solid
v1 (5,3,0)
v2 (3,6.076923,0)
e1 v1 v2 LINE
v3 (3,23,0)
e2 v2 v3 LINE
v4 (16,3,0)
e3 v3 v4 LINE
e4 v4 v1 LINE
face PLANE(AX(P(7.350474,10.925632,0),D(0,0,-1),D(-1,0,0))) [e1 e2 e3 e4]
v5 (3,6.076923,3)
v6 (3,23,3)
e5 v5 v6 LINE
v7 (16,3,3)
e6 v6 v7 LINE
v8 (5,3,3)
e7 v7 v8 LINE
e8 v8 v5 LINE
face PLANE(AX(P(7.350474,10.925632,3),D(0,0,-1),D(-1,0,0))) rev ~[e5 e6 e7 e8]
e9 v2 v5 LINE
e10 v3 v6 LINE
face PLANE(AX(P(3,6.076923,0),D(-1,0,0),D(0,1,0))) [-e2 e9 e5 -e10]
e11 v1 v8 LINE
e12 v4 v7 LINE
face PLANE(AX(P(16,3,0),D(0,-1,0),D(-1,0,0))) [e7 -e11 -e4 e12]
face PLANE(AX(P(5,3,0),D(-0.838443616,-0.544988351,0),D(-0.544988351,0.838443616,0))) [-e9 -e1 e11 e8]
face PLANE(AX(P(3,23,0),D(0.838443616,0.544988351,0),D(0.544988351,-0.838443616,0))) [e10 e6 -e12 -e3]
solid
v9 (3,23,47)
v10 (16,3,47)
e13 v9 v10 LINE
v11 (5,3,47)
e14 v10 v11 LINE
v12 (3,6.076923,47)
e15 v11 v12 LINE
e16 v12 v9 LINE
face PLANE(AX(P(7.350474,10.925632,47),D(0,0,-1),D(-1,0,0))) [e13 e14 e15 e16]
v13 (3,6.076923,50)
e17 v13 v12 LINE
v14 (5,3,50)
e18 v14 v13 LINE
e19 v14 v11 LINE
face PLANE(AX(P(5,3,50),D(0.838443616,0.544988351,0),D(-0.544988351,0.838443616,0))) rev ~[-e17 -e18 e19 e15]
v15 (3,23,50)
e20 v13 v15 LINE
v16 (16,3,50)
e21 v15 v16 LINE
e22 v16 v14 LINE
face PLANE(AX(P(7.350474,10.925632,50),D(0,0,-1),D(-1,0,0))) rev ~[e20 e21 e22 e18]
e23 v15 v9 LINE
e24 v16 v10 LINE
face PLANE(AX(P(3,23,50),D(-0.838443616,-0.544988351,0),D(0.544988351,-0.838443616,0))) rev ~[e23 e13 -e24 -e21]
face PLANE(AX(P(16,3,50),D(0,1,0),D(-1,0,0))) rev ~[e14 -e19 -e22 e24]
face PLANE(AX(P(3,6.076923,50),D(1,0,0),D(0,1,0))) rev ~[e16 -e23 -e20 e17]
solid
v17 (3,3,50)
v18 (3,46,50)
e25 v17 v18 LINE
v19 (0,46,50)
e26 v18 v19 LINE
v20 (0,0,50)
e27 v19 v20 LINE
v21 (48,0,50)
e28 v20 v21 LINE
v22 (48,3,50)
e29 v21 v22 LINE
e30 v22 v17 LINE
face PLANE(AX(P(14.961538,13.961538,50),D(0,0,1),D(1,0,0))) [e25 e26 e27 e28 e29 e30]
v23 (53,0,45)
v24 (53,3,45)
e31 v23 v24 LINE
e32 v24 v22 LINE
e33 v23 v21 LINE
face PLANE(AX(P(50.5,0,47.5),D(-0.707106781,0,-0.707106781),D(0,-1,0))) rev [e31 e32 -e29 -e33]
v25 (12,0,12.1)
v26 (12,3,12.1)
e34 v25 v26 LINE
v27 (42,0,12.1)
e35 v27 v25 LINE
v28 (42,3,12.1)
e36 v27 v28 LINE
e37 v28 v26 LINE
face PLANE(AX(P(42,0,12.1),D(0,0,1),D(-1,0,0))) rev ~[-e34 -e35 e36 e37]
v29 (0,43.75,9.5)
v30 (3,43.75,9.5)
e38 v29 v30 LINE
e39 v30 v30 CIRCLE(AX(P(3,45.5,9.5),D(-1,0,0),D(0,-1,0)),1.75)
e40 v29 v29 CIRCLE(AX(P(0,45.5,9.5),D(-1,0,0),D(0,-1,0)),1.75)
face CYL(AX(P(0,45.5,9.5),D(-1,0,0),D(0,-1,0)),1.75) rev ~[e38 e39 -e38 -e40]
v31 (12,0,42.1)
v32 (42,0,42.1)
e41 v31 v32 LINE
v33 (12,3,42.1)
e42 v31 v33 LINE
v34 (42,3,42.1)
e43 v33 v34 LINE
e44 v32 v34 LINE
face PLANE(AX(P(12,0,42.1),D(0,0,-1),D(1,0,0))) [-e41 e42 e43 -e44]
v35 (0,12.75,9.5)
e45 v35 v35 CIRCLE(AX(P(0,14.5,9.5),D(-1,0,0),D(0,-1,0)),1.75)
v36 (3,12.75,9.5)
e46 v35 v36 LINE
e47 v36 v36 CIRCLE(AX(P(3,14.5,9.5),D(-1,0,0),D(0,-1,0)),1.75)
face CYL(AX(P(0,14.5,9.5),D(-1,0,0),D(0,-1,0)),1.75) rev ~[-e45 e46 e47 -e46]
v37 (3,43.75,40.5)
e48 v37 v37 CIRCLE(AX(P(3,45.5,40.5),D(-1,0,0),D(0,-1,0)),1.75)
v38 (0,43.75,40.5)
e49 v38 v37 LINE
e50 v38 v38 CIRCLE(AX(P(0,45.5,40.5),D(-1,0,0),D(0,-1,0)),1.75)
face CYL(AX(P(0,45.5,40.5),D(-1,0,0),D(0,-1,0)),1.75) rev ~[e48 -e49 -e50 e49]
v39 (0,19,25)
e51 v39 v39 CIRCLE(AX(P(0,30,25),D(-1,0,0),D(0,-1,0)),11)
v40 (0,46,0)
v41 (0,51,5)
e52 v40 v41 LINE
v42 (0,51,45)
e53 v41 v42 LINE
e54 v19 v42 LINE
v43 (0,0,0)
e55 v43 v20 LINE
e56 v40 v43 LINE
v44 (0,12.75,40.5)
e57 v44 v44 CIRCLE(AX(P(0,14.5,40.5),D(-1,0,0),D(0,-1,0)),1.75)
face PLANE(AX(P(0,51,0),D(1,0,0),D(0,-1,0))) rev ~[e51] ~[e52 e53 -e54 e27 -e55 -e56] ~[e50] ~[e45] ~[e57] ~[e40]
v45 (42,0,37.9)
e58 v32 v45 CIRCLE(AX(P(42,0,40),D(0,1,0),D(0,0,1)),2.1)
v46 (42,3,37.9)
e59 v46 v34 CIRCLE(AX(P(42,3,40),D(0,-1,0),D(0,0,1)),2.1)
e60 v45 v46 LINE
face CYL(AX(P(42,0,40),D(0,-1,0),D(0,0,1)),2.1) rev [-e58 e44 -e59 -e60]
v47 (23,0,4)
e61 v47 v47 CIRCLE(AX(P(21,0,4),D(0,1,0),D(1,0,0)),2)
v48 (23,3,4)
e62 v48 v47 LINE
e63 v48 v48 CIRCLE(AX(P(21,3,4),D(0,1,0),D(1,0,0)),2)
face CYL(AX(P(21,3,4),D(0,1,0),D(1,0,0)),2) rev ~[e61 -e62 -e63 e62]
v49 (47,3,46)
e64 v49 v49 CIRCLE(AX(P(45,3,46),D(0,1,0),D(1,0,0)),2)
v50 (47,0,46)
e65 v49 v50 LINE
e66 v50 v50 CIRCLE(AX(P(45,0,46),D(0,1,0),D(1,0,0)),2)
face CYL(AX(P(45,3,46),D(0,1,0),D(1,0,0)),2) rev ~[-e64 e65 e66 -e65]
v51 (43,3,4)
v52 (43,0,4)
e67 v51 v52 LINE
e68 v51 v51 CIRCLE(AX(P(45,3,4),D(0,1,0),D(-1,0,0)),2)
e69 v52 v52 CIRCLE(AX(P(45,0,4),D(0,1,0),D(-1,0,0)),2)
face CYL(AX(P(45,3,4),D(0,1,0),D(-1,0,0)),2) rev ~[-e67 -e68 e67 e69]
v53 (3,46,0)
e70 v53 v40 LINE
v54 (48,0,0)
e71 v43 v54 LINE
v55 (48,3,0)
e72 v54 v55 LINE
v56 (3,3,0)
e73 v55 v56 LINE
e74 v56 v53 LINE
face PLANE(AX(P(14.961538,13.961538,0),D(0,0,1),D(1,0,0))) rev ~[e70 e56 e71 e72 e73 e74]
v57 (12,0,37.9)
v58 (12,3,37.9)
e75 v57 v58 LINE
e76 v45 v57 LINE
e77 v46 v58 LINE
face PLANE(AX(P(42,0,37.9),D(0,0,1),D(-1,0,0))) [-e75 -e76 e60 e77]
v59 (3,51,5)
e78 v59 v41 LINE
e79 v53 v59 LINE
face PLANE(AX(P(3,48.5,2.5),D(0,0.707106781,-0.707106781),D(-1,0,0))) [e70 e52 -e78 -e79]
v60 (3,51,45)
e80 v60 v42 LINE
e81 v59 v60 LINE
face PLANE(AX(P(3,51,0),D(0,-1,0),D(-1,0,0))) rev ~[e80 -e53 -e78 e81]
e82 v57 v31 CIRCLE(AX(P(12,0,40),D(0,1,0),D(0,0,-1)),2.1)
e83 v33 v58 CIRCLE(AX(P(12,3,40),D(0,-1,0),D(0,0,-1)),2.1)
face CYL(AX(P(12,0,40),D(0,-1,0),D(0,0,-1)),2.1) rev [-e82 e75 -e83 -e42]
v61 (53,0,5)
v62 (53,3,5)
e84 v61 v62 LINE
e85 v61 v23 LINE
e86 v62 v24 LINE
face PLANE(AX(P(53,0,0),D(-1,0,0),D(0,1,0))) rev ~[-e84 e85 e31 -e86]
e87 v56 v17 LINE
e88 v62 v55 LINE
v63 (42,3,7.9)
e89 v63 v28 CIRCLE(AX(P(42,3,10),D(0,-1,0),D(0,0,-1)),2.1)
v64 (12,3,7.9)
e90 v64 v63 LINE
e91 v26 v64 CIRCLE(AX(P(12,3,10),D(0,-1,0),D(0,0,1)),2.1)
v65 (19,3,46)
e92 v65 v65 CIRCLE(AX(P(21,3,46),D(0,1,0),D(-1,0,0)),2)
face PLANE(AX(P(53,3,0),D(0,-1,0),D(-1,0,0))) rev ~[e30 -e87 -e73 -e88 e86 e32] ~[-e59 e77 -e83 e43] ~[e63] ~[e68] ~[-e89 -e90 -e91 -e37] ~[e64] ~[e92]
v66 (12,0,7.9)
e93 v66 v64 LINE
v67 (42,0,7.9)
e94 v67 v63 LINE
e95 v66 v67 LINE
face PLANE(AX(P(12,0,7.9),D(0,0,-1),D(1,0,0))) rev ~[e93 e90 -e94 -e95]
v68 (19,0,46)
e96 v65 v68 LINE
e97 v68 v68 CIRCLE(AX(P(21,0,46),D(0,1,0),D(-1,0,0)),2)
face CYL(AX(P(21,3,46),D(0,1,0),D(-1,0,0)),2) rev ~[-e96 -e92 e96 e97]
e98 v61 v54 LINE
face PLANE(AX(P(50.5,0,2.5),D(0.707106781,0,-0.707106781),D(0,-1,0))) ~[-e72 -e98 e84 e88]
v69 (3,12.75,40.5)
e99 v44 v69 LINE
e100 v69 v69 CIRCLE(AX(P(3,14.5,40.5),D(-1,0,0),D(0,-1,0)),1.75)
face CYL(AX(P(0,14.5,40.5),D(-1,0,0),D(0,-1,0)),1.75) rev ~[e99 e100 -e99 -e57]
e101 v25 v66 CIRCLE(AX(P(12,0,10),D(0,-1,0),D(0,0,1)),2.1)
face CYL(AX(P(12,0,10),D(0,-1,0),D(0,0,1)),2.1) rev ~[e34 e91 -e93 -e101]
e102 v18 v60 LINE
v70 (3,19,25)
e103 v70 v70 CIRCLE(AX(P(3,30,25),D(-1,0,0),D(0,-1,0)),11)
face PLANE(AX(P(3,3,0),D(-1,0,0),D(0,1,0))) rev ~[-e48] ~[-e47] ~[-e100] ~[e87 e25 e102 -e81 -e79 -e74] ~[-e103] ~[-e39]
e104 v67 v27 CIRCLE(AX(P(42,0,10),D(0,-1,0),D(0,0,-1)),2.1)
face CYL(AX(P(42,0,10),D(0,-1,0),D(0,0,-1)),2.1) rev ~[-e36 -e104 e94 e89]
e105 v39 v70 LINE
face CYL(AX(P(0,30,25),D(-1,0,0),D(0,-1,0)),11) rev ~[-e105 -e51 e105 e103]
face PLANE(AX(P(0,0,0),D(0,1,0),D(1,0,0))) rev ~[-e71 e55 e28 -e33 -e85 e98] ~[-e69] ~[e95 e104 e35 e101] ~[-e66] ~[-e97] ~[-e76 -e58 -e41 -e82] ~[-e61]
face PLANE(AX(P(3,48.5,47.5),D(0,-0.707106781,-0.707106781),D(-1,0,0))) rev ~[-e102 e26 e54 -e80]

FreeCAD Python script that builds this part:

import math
import FreeCAD as App
import Part
import Sketcher

V = App.Vector
Q = App.Units.Quantity


def edges_at(feature, points):
    """Names of the edges that pass closest to the given points."""
    edges = feature.Shape.Edges
    near = lambda p: min(range(len(edges)), key=lambda i: edges[i].distToShape(Part.Vertex(*p))[0])
    return sorted({f"Edge{near(p) + 1}" for p in points})


def add_polygon(sketch, points):
    """Adds a closed chain of lines whose ends are joined by coincident constraints."""
    first, n = sketch.GeometryCount, len(points)
    for a, b in zip(points, points[1:] + points[:1]):
        sketch.addGeometry(Part.LineSegment(App.Vector(*a, 0), App.Vector(*b, 0)), False)
    for i in range(n):
        sketch.addConstraint(Sketcher.Constraint("Coincident", first + i, 2, first + (i + 1) % n, 1))

doc = App.newDocument("Part")
params = doc.addObject("Spreadsheet::Sheet", "Params")
for row, (alias, value) in enumerate([
    ("sketch1_width", "53 mm"),
    ("sketch1_width2", "50 mm"),
    ("sketch1_height", "48 mm"),
    ("pad1_length", "50 mm"),
    ("sketch2_diameter", "22 mm"),
    ("sketch2_diameter2", "3.5 mm"),
    ("chamfer_size", "5 mm"),
    ("sketch3_radius", "2.1 mm"),
    ("sketch3_width", "30 mm"),
    ("sketch4_diameter", "4 mm"),
    ("sketch5_width", "11 mm"),
    ("pad2_length", "3 mm"),
    ("sketch6_width", "11 mm"),
    ("pad3_length", "3 mm"),
], start=1):
    params.set(f"A{row}", alias)
    params.set(f"B{row}", "=" + value)
    params.setAlias(f"B{row}", alias)

body = doc.addObject("PartDesign::Body", "Body")

# Sketch on XY plane
sketch1 = doc.addObject("Sketcher::SketchObject", "Sketch")
body.addObject(sketch1)
sketch1.AttachmentSupport = (doc.XY_Plane, [""])
sketch1.MapMode = "FlatFace"
add_polygon(sketch1, [(0, 0), (53, 0), (53, 3), (3, 3), (3, 51), (0, 51)])  # lines 0-5
sketch1.addConstraint([
    Sketcher.Constraint("Horizontal", 0),
    Sketcher.Constraint("Vertical", 1),
    Sketcher.Constraint("Horizontal", 2),
    Sketcher.Constraint("Vertical", 3),
    Sketcher.Constraint("Horizontal", 4),
    Sketcher.Constraint("Vertical", 5),
    Sketcher.Constraint("Coincident", 5, 2, -1, 1),
    Sketcher.Constraint("Equal", 4, 1),
    Sketcher.Constraint("DistanceX", 0, 1, 0, 2, Q("53 mm")),
    Sketcher.Constraint("DistanceX", 2, 2, 2, 1, Q("50 mm")),
    Sketcher.Constraint("DistanceY", 3, 1, 3, 2, Q("48 mm")),
])
sketch1.setExpression("Constraints[14]", "Params.sketch1_width")
sketch1.setExpression("Constraints[15]", "Params.sketch1_width2")
sketch1.setExpression("Constraints[16]", "Params.sketch1_height")
pad1 = doc.addObject("PartDesign::Pad", "Pad")
body.addObject(pad1)
pad1.Profile = sketch1
pad1.setExpression("Length", "Params.pad1_length")

# Sketch on YZ plane
sketch2 = doc.addObject("Sketcher::SketchObject", "Sketch001")
body.addObject(sketch2)
sketch2.AttachmentSupport = (doc.YZ_Plane, [""])
sketch2.MapMode = "FlatFace"
sketch2.addGeometry([
    Part.Circle(V(45.5, 9.5, 0), V(0, 0, 1), 1.8),  # 0
    Part.Circle(V(45.5, 40.5, 0), V(0, 0, 1), 1.8),  # 1
    Part.Circle(V(14.5, 40.5, 0), V(0, 0, 1), 1.8),  # 2
    Part.Circle(V(14.5, 9.5, 0), V(0, 0, 1), 1.8),  # 3
    Part.Circle(V(30, 25, 0), V(0, 0, 1), 11),  # 4
], False)
sketch2.addConstraint([
    Sketcher.Constraint("Equal", 0, 1),
    Sketcher.Constraint("Equal", 1, 2),
    Sketcher.Constraint("Equal", 2, 3),
    Sketcher.Constraint("Horizontal", 1, 3, 2, 3),
    Sketcher.Constraint("Horizontal", 0, 3, 3, 3),
    Sketcher.Constraint("Vertical", 0, 3, 1, 3),
    Sketcher.Constraint("Vertical", 2, 3, 3, 3),
    Sketcher.Constraint("Diameter", 4, Q("22 mm")),
    Sketcher.Constraint("Diameter", 0, Q("3.5 mm")),
    Sketcher.Constraint("DistanceX", -1, 1, 4, 3, Q("30 mm")),
    Sketcher.Constraint("DistanceY", -1, 1, 4, 3, Q("25 mm")),
    Sketcher.Constraint("DistanceY", 0, 3, 1, 3, Q("31 mm")),
    Sketcher.Constraint("DistanceX", 2, 3, 1, 3, Q("31 mm")),
    Sketcher.Constraint("DistanceX", -1, 1, 0, 3, Q("45.5 mm")),
    Sketcher.Constraint("DistanceY", -1, 1, 0, 3, Q("9.5 mm")),
])
sketch2.setExpression("Constraints[7]", "Params.sketch2_diameter")
sketch2.setExpression("Constraints[8]", "Params.sketch2_diameter2")
pocket1 = doc.addObject("PartDesign::Pocket", "Pocket")
body.addObject(pocket1)
pocket1.Profile = sketch2
pocket1.Type = "ThroughAll"
pocket1.Reversed = True
doc.recompute()

chamfer = doc.addObject("PartDesign::Chamfer", "Chamfer")
body.addObject(chamfer)
chamfer.Base = (pocket1, edges_at(pocket1, [
    (53, 1.5, 50),
    (1.5, 51, 50),
    (1.5, 51, 0),
    (53, 1.5, 0),
]))
chamfer.setExpression("Size", "Params.chamfer_size")

# Sketch on XZ plane
sketch3 = doc.addObject("Sketcher::SketchObject", "Sketch002")
body.addObject(sketch3)
sketch3.AttachmentSupport = (doc.XZ_Plane, [""])
sketch3.MapMode = "FlatFace"
sketch3.addGeometry([
    Part.LineSegment(V(42, 42.1, 0), V(12, 42.1, 0)),  # 0
    Part.ArcOfCircle(Part.Circle(V(12, 40, 0), V(0, 0, 1), 2.1), math.radians(90), math.radians(270)),  # 1
    Part.LineSegment(V(12, 37.9, 0), V(42, 37.9, 0)),  # 2
    Part.ArcOfCircle(Part.Circle(V(42, 40, 0), V(0, 0, 1), 2.1), math.radians(-90), math.radians(90)),  # 3
    Part.LineSegment(V(12, 7.9, 0), V(42, 7.9, 0)),  # 4
    Part.ArcOfCircle(Part.Circle(V(42, 10, 0), V(0, 0, 1), 2.1), math.radians(-90), math.radians(90)),  # 5
    Part.LineSegment(V(42, 12.1, 0), V(12, 12.1, 0)),  # 6
    Part.ArcOfCircle(Part.Circle(V(12, 10, 0), V(0, 0, 1), 2.1), math.radians(90), math.radians(270)),  # 7
], False)
sketch3.addConstraint([
    Sketcher.Constraint("Tangent", 0, 2, 1, 1),
    Sketcher.Constraint("Tangent", 1, 2, 2, 1),
    Sketcher.Constraint("Tangent", 2, 2, 3, 1),
    Sketcher.Constraint("Tangent", 3, 2, 0, 1),
    Sketcher.Constraint("Tangent", 4, 2, 5, 1),
    Sketcher.Constraint("Tangent", 5, 2, 6, 1),
    Sketcher.Constraint("Tangent", 6, 2, 7, 1),
    Sketcher.Constraint("Tangent", 7, 2, 4, 1),
    Sketcher.Constraint("Horizontal", 0),
    Sketcher.Constraint("Horizontal", 2),
    Sketcher.Constraint("Horizontal", 4),
    Sketcher.Constraint("Horizontal", 6),
    Sketcher.Constraint("Equal", 3, 5),
    Sketcher.Constraint("Vertical", 3, 3, 5, 3),
    Sketcher.Constraint("Vertical", 1, 3, 7, 3),
    Sketcher.Constraint("Radius", 1, Q("2.1 mm")),
    Sketcher.Constraint("DistanceX", 0, 2, 0, 1, Q("30 mm")),
    Sketcher.Constraint("DistanceX", -1, 1, 1, 3, Q("12 mm")),
    Sketcher.Constraint("DistanceY", -1, 1, 1, 3, Q("40 mm")),
    Sketcher.Constraint("DistanceY", -1, 1, 5, 3, Q("10 mm")),
])
sketch3.setExpression("Constraints[15]", "Params.sketch3_radius")
sketch3.setExpression("Constraints[16]", "Params.sketch3_width")
pocket2 = doc.addObject("PartDesign::Pocket", "Pocket001")
body.addObject(pocket2)
pocket2.Profile = sketch3
pocket2.Type = "ThroughAll"

# Sketch on XZ plane
sketch4 = doc.addObject("Sketcher::SketchObject", "Sketch003")
body.addObject(sketch4)
sketch4.AttachmentSupport = (doc.XZ_Plane, [""])
sketch4.MapMode = "FlatFace"
sketch4.AttachmentOffset = App.Placement(V(0, 0, -3), App.Rotation())
sketch4.addGeometry([
    Part.Circle(V(45, 4, 0), V(0, 0, 1), 2),
    Part.Circle(V(45, 46, 0), V(0, 0, 1), 2),
    Part.Circle(V(21, 46, 0), V(0, 0, 1), 2),
    Part.Circle(V(21, 4, 0), V(0, 0, 1), 2),
], False)
sketch4.addConstraint([
    Sketcher.Constraint("Equal", 0, 1),
    Sketcher.Constraint("Equal", 1, 2),
    Sketcher.Constraint("Equal", 2, 3),
    Sketcher.Constraint("Horizontal", 1, 3, 2, 3),
    Sketcher.Constraint("Horizontal", 0, 3, 3, 3),
    Sketcher.Constraint("Vertical", 0, 3, 1, 3),
    Sketcher.Constraint("Vertical", 2, 3, 3, 3),
    Sketcher.Constraint("Diameter", 0, Q("4 mm")),
    Sketcher.Constraint("DistanceX", -1, 1, 0, 3, Q("45 mm")),
    Sketcher.Constraint("DistanceY", -1, 1, 0, 3, Q("4 mm")),
    Sketcher.Constraint("DistanceY", -1, 1, 1, 3, Q("46 mm")),
    Sketcher.Constraint("DistanceX", -1, 1, 2, 3, Q("21 mm")),
])
sketch4.setExpression("Constraints[7]", "Params.sketch4_diameter")
pocket3 = doc.addObject("PartDesign::Pocket", "Pocket002")
body.addObject(pocket3)
pocket3.Profile = sketch4
pocket3.Type = "ThroughAll"
pocket3.Reversed = True
body2 = doc.addObject("PartDesign::Body", "Body001")

# Sketch on XY plane
sketch5 = doc.addObject("Sketcher::SketchObject", "Sketch004")
body2.addObject(sketch5)
sketch5.AttachmentSupport = (doc.getObject("XY_Plane001"), [""])
sketch5.MapMode = "FlatFace"
sketch5.AttachmentOffset = App.Placement(V(0, 0, 50), App.Rotation())
add_polygon(sketch5, [(16, 3), (3, 23), (3, 6.1), (5, 3)])  # lines 0-3
sketch5.addConstraint([
    Sketcher.Constraint("Vertical", 1),
    Sketcher.Constraint("Horizontal", 3),
    Sketcher.Constraint("Parallel", 0, 2),
    Sketcher.Constraint("DistanceX", 3, 1, 3, 2, Q("11 mm")),
    Sketcher.Constraint("DistanceX", -1, 1, 0, 2, Q("3 mm")),
    Sketcher.Constraint("DistanceY", -1, 1, 0, 2, Q("23 mm")),
    Sketcher.Constraint("DistanceX", -1, 1, 2, 2, Q("5 mm")),
    Sketcher.Constraint("DistanceY", -1, 1, 2, 2, Q("3 mm")),
])
sketch5.setExpression("Constraints[7]", "Params.sketch5_width")
pad2 = doc.addObject("PartDesign::Pad", "Pad001")
body2.addObject(pad2)
pad2.Profile = sketch5
pad2.setExpression("Length", "Params.pad2_length")
pad2.Reversed = True
body3 = doc.addObject("PartDesign::Body", "Body002")

# Sketch on XY plane
sketch6 = doc.addObject("Sketcher::SketchObject", "Sketch005")
body3.addObject(sketch6)
sketch6.AttachmentSupport = (doc.getObject("XY_Plane002"), [""])
sketch6.MapMode = "FlatFace"
add_polygon(sketch6, [(16, 3), (3, 23), (3, 6.1), (5, 3)])  # lines 0-3
sketch6.addConstraint([
    Sketcher.Constraint("Vertical", 1),
    Sketcher.Constraint("Horizontal", 3),
    Sketcher.Constraint("Parallel", 0, 2),
    Sketcher.Constraint("DistanceX", 3, 1, 3, 2, Q("11 mm")),
    Sketcher.Constraint("DistanceX", -1, 1, 0, 2, Q("3 mm")),
    Sketcher.Constraint("DistanceY", -1, 1, 0, 2, Q("23 mm")),
    Sketcher.Constraint("DistanceX", -1, 1, 2, 2, Q("5 mm")),
    Sketcher.Constraint("DistanceY", -1, 1, 2, 2, Q("3 mm")),
])
sketch6.setExpression("Constraints[7]", "Params.sketch6_width")
pad3 = doc.addObject("PartDesign::Pad", "Pad002")
body3.addObject(pad3)
pad3.Profile = sketch6
pad3.setExpression("Length", "Params.pad3_length")

doc.recompute()
